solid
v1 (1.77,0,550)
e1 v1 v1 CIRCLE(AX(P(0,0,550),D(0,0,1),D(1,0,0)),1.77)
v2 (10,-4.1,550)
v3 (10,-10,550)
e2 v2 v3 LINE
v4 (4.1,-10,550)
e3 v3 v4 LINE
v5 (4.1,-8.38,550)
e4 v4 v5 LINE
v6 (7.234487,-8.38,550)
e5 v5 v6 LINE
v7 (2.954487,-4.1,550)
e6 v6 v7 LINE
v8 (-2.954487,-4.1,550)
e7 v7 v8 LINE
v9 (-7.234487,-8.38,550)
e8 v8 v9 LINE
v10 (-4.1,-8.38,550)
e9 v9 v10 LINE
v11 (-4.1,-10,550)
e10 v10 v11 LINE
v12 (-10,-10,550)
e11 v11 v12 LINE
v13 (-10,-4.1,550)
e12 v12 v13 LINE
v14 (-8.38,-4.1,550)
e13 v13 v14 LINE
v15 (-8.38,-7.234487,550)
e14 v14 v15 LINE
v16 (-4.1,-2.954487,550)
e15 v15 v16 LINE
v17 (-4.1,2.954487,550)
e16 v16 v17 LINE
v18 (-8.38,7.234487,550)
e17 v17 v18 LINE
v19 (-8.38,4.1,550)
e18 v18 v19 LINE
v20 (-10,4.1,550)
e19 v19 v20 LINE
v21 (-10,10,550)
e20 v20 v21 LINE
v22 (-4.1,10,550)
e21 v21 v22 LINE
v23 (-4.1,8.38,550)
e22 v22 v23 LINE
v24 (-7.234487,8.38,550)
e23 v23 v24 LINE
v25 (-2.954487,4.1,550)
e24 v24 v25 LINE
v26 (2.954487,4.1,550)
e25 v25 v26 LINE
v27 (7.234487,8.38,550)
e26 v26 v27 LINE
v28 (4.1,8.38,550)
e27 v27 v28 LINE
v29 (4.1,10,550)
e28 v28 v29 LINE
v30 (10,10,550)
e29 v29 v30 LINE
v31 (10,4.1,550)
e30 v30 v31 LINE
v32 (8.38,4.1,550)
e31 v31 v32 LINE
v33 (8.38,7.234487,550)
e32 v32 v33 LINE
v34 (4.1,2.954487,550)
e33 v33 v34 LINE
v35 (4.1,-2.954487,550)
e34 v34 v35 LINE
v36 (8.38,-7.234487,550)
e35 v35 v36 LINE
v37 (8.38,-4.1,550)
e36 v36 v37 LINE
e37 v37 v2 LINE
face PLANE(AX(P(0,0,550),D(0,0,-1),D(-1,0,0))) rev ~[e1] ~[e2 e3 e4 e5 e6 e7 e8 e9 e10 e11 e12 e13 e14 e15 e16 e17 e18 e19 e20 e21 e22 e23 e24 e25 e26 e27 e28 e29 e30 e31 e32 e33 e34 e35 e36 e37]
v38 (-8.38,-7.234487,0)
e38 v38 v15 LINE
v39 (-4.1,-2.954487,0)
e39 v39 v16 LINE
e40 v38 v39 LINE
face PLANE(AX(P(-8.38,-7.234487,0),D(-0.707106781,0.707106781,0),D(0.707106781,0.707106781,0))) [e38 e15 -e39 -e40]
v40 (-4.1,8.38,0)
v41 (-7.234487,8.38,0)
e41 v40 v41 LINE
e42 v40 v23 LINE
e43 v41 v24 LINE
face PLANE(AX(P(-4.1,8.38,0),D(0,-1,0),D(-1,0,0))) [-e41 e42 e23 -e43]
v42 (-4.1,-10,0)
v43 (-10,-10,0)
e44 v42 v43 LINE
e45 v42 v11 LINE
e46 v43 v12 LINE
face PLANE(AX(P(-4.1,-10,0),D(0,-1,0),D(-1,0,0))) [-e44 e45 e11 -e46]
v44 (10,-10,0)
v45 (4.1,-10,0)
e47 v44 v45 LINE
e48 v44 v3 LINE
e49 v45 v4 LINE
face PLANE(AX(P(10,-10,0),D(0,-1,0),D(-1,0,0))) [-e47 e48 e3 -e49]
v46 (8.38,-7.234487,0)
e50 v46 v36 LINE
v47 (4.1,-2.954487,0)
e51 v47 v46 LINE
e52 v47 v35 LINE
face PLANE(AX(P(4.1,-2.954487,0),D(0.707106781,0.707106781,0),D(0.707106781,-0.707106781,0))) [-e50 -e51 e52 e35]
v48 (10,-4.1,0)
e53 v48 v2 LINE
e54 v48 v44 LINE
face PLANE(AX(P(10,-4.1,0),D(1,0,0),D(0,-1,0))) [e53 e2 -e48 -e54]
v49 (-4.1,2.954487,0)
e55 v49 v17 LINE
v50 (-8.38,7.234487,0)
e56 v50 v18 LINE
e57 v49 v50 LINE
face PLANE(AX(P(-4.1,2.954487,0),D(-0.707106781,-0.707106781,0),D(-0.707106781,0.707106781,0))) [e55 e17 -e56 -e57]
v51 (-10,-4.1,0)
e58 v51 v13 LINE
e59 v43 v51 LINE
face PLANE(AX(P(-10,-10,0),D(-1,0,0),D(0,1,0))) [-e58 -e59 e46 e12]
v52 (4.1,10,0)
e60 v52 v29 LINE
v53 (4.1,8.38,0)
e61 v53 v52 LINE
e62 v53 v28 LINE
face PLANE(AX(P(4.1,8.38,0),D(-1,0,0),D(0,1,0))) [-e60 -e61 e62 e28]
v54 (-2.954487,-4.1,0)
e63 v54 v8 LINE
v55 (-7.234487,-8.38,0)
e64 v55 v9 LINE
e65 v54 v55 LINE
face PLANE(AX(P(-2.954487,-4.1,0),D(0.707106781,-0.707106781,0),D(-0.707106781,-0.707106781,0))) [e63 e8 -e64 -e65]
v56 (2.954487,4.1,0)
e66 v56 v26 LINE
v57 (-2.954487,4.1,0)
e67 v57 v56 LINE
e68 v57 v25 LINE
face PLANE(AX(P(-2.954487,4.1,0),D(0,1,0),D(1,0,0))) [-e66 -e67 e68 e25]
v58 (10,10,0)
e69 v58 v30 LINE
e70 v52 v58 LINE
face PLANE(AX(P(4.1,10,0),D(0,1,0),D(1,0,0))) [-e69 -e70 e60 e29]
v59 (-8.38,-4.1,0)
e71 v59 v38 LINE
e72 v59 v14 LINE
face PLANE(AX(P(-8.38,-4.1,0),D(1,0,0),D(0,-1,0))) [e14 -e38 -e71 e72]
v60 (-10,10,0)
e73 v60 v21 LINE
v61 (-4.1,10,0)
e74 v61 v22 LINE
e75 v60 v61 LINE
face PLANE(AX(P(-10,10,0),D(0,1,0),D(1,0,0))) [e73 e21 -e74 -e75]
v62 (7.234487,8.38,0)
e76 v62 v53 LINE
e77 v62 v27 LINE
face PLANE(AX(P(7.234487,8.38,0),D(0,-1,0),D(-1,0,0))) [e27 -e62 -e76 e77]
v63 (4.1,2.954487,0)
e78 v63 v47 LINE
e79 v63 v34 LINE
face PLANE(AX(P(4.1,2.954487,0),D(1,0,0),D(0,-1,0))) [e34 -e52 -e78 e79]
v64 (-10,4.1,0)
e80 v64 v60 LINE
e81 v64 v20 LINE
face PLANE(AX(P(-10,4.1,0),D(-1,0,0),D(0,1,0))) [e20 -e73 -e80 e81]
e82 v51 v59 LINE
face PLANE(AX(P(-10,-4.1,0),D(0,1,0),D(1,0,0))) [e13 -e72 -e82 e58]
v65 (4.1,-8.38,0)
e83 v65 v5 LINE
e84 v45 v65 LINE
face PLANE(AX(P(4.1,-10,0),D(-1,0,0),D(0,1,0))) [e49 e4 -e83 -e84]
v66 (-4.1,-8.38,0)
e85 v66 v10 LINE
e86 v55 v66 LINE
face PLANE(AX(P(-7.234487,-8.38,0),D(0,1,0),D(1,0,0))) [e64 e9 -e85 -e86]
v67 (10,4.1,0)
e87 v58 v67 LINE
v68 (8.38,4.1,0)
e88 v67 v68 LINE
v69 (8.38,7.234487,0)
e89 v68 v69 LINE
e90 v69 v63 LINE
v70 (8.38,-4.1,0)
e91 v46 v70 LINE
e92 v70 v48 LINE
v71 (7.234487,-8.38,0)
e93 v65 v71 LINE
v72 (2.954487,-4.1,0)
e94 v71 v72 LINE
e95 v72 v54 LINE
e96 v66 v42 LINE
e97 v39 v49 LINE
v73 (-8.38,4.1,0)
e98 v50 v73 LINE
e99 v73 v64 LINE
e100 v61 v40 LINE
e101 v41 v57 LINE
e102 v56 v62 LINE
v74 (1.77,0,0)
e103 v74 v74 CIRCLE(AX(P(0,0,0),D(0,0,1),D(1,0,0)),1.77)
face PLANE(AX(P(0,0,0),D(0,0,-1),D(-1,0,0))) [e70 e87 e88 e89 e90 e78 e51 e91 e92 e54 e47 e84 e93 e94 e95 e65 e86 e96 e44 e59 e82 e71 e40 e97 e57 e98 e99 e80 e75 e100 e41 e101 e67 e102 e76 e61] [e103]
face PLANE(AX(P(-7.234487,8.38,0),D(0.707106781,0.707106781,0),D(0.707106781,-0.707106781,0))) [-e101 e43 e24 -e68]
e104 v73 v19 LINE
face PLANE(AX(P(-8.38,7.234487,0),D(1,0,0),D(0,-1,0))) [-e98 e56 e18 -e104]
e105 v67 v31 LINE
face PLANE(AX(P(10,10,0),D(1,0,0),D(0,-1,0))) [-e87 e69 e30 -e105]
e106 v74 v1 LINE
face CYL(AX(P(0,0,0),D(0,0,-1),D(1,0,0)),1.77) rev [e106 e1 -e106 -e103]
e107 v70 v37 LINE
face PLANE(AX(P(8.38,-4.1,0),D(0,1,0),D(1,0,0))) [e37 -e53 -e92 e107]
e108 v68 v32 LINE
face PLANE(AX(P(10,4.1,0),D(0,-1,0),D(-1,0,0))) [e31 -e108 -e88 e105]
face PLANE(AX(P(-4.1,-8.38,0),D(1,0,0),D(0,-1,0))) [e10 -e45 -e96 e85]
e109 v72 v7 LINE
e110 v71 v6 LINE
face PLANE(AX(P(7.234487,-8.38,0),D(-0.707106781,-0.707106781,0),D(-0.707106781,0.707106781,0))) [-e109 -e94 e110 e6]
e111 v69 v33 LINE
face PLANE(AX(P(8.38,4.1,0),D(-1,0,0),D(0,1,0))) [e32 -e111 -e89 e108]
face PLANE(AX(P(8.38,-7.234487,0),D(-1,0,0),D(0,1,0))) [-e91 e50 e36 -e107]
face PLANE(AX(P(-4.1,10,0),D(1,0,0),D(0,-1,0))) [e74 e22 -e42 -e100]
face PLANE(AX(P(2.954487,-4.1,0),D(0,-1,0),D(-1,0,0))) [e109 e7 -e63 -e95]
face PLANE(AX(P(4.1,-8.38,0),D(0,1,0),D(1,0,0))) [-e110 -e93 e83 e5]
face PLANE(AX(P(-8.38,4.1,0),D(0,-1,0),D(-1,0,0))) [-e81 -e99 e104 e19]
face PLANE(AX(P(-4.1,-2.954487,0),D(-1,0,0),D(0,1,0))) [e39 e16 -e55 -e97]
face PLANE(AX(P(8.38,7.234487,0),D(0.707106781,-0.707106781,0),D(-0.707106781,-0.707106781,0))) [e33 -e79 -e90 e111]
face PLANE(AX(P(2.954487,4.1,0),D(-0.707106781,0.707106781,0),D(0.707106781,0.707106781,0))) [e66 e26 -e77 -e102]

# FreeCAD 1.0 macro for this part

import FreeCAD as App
import Part
import Sketcher

doc = App.newDocument("Part")
body = doc.addObject("PartDesign::Body", "Body")

# Sketch on XY plane
sketch1 = doc.addObject("Sketcher::SketchObject", "Sketch")
body.addObject(sketch1)
sketch1.AttachmentSupport = (doc.XY_Plane, [""])
sketch1.MapMode = "FlatFace"
sketch1.addGeometry([
    Part.LineSegment(App.Vector(-10, 4.1, 0), App.Vector(-8.4, 4.1, 0)),  # 0
    Part.LineSegment(App.Vector(-8.4, 4.1, 0), App.Vector(-8.4, 7.2, 0)),  # 1
    Part.LineSegment(App.Vector(-8.4, 7.2, 0), App.Vector(-4.1, 3, 0)),  # 2
    Part.LineSegment(App.Vector(-4.1, 3, 0), App.Vector(-4.1, -3, 0)),  # 3
    Part.LineSegment(App.Vector(-4.1, -3, 0), App.Vector(-8.4, -7.2, 0)),  # 4
    Part.LineSegment(App.Vector(-8.4, -7.2, 0), App.Vector(-8.4, -4.1, 0)),  # 5
    Part.LineSegment(App.Vector(-8.4, -4.1, 0), App.Vector(-10, -4.1, 0)),  # 6
    Part.LineSegment(App.Vector(-10, -4.1, 0), App.Vector(-10, -10, 0)),  # 7
    Part.LineSegment(App.Vector(-10, -10, 0), App.Vector(-4.1, -10, 0)),  # 8
    Part.LineSegment(App.Vector(-4.1, -10, 0), App.Vector(-4.1, -8.4, 0)),  # 9
    Part.LineSegment(App.Vector(-4.1, -8.4, 0), App.Vector(-7.2, -8.4, 0)),  # 10
    Part.LineSegment(App.Vector(-7.2, -8.4, 0), App.Vector(-3, -4.1, 0)),  # 11
    Part.LineSegment(App.Vector(-3, -4.1, 0), App.Vector(3, -4.1, 0)),  # 12
    Part.LineSegment(App.Vector(3, -4.1, 0), App.Vector(7.2, -8.4, 0)),  # 13
    Part.LineSegment(App.Vector(7.2, -8.4, 0), App.Vector(4.1, -8.4, 0)),  # 14
    Part.LineSegment(App.Vector(4.1, -8.4, 0), App.Vector(4.1, -10, 0)),  # 15
    Part.LineSegment(App.Vector(4.1, -10, 0), App.Vector(10, -10, 0)),  # 16
    Part.LineSegment(App.Vector(10, -10, 0), App.Vector(10, -4.1, 0)),  # 17
    Part.LineSegment(App.Vector(10, -4.1, 0), App.Vector(8.4, -4.1, 0)),  # 18
    Part.LineSegment(App.Vector(8.4, -4.1, 0), App.Vector(8.4, -7.2, 0)),  # 19
    Part.LineSegment(App.Vector(8.4, -7.2, 0), App.Vector(4.1, -3, 0)),  # 20
    Part.LineSegment(App.Vector(4.1, -3, 0), App.Vector(4.1, 3, 0)),  # 21
    Part.LineSegment(App.Vector(4.1, 3, 0), App.Vector(8.4, 7.2, 0)),  # 22
    Part.LineSegment(App.Vector(8.4, 7.2, 0), App.Vector(8.4, 4.1, 0)),  # 23
    Part.LineSegment(App.Vector(8.4, 4.1, 0), App.Vector(10, 4.1, 0)),  # 24
    Part.LineSegment(App.Vector(10, 4.1, 0), App.Vector(10, 10, 0)),  # 25
    Part.LineSegment(App.Vector(10, 10, 0), App.Vector(4.1, 10, 0)),  # 26
    Part.LineSegment(App.Vector(4.1, 10, 0), App.Vector(4.1, 8.4, 0)),  # 27
    Part.LineSegment(App.Vector(4.1, 8.4, 0), App.Vector(7.2, 8.4, 0)),  # 28
    Part.LineSegment(App.Vector(7.2, 8.4, 0), App.Vector(3, 4.1, 0)),  # 29
    Part.LineSegment(App.Vector(3, 4.1, 0), App.Vector(-3, 4.1, 0)),  # 30
    Part.LineSegment(App.Vector(-3, 4.1, 0), App.Vector(-7.2, 8.4, 0)),  # 31
    Part.LineSegment(App.Vector(-7.2, 8.4, 0), App.Vector(-4.1, 8.4, 0)),  # 32
    Part.LineSegment(App.Vector(-4.1, 8.4, 0), App.Vector(-4.1, 10, 0)),  # 33
    Part.LineSegment(App.Vector(-4.1, 10, 0), App.Vector(-10, 10, 0)),  # 34
    Part.LineSegment(App.Vector(-10, 10, 0), App.Vector(-10, 4.1, 0)),  # 35
    Part.Circle(App.Vector(0, 0, 0), App.Vector(0, 0, 1), 1.8),  # 36
], False)
sketch1.addConstraint([
    Sketcher.Constraint("Coincident", 0, 2, 1, 1),
    Sketcher.Constraint("Coincident", 1, 2, 2, 1),
    Sketcher.Constraint("Coincident", 2, 2, 3, 1),
    Sketcher.Constraint("Coincident", 3, 2, 4, 1),
    Sketcher.Constraint("Coincident", 4, 2, 5, 1),
    Sketcher.Constraint("Coincident", 5, 2, 6, 1),
    Sketcher.Constraint("Coincident", 6, 2, 7, 1),
    Sketcher.Constraint("Coincident", 7, 2, 8, 1),
    Sketcher.Constraint("Coincident", 8, 2, 9, 1),
    Sketcher.Constraint("Coincident", 9, 2, 10, 1),
    Sketcher.Constraint("Coincident", 10, 2, 11, 1),
    Sketcher.Constraint("Coincident", 11, 2, 12, 1),
    Sketcher.Constraint("Coincident", 12, 2, 13, 1),
    Sketcher.Constraint("Coincident", 13, 2, 14, 1),
    Sketcher.Constraint("Coincident", 14, 2, 15, 1),
    Sketcher.Constraint("Coincident", 15, 2, 16, 1),
    Sketcher.Constraint("Coincident", 16, 2, 17, 1),
    Sketcher.Constraint("Coincident", 17, 2, 18, 1),
    Sketcher.Constraint("Coincident", 18, 2, 19, 1),
    Sketcher.Constraint("Coincident", 19, 2, 20, 1),
    Sketcher.Constraint("Coincident", 20, 2, 21, 1),
    Sketcher.Constraint("Coincident", 21, 2, 22, 1),
    Sketcher.Constraint("Coincident", 22, 2, 23, 1),
    Sketcher.Constraint("Coincident", 23, 2, 24, 1),
    Sketcher.Constraint("Coincident", 24, 2, 25, 1),
    Sketcher.Constraint("Coincident", 25, 2, 26, 1),
    Sketcher.Constraint("Coincident", 26, 2, 27, 1),
    Sketcher.Constraint("Coincident", 27, 2, 28, 1),
    Sketcher.Constraint("Coincident", 28, 2, 29, 1),
    Sketcher.Constraint("Coincident", 29, 2, 30, 1),
    Sketcher.Constraint("Coincident", 30, 2, 31, 1),
    Sketcher.Constraint("Coincident", 31, 2, 32, 1),
    Sketcher.Constraint("Coincident", 32, 2, 33, 1),
    Sketcher.Constraint("Coincident", 33, 2, 34, 1),
    Sketcher.Constraint("Coincident", 34, 2, 35, 1),
    Sketcher.Constraint("Coincident", 35, 2, 0, 1),
    Sketcher.Constraint("Horizontal", 0),
    Sketcher.Constraint("Vertical", 1),
    Sketcher.Constraint("Vertical", 3),
    Sketcher.Constraint("Vertical", 5),
    Sketcher.Constraint("Horizontal", 6),
    Sketcher.Constraint("Vertical", 7),
    Sketcher.Constraint("Horizontal", 8),
    Sketcher.Constraint("Vertical", 9),
    Sketcher.Constraint("Horizontal", 10),
    Sketcher.Constraint("Horizontal", 12),
    Sketcher.Constraint("Horizontal", 14),
    Sketcher.Constraint("Vertical", 15),
    Sketcher.Constraint("Horizontal", 16),
    Sketcher.Constraint("Vertical", 17),
    Sketcher.Constraint("Horizontal", 18),
    Sketcher.Constraint("Vertical", 19),
    Sketcher.Constraint("Vertical", 21),
    Sketcher.Constraint("Vertical", 23),
    Sketcher.Constraint("Horizontal", 24),
    Sketcher.Constraint("Vertical", 25),
    Sketcher.Constraint("Horizontal", 26),
    Sketcher.Constraint("Vertical", 27),
    Sketcher.Constraint("Horizontal", 28),
    Sketcher.Constraint("Horizontal", 30),
    Sketcher.Constraint("Horizontal", 32),
    Sketcher.Constraint("Vertical", 33),
    Sketcher.Constraint("Horizontal", 34),
    Sketcher.Constraint("Vertical", 35),
    Sketcher.Constraint("Coincident", 36, 3, -1, 1),
    Sketcher.Constraint("Symmetric", 0, 2, 18, 2, -1, 1),
    Sketcher.Constraint("Symmetric", 2, 2, 20, 2, -1, 1),
    Sketcher.Constraint("Symmetric", 4, 2, 22, 2, -1, 1),
    Sketcher.Constraint("Symmetric", 6, 2, 24, 2, -1, 1),
    Sketcher.Constraint("Symmetric", 8, 2, 26, 2, -1, 1),
    Sketcher.Constraint("Symmetric", 10, 2, 28, 2, -1, 1),
    Sketcher.Constraint("Symmetric", 11, 2, 29, 2, -1, 1),
    Sketcher.Constraint("Symmetric", 13, 2, 31, 2, -1, 1),
    Sketcher.Constraint("Symmetric", 15, 2, 33, 2, -1, 1),
    Sketcher.Constraint("Symmetric", 10, 2, 13, 2, -2),
    Sketcher.Constraint("Symmetric", 8, 2, 15, 2, -2),
    Sketcher.Constraint("Symmetric", 6, 2, 17, 2, -2),
    Sketcher.Constraint("Symmetric", 4, 2, 19, 2, -2),
    Sketcher.Constraint("Perpendicular", 2, 4),
    Sketcher.Constraint("Parallel", 4, 11),
    Sketcher.Constraint("Perpendicular", 11, 13),
    Sketcher.Constraint("Parallel", 13, 20),
    Sketcher.Constraint("Perpendicular", 20, 22),
    Sketcher.Constraint("Perpendicular", 29, 31),
    Sketcher.Constraint("Horizontal", 6, 2, 11, 2),
    Sketcher.Constraint("Horizontal", 3, 2, 20, 2),
    Sketcher.Constraint("Vertical", 3, 2, 8, 2),
    Sketcher.Constraint("Vertical", 7, 2, 34, 2),
    Sketcher.Constraint("Equal", 32, 1),
    Sketcher.Constraint("Equal", 30, 3),
    Sketcher.Constraint("Equal", 34, 7),
    Sketcher.Constraint("Equal", 24, 9),
    Sketcher.Constraint("Diameter", 36, 3.54),
    Sketcher.Constraint("DistanceX", 8, 1, 8, 2, 5.9),
    Sketcher.Constraint("DistanceX", 6, 2, -1, 1, 10.0),
    Sketcher.Constraint("DistanceX", 0, 1, 0, 2, 1.62),
    Sketcher.Constraint("DistanceX", 10, 2, 10, 1, 3.134487),
])
pad1 = doc.addObject("PartDesign::Pad", "Pad")
body.addObject(pad1)
pad1.Profile = sketch1
pad1.Length = 550

doc.recompute()
